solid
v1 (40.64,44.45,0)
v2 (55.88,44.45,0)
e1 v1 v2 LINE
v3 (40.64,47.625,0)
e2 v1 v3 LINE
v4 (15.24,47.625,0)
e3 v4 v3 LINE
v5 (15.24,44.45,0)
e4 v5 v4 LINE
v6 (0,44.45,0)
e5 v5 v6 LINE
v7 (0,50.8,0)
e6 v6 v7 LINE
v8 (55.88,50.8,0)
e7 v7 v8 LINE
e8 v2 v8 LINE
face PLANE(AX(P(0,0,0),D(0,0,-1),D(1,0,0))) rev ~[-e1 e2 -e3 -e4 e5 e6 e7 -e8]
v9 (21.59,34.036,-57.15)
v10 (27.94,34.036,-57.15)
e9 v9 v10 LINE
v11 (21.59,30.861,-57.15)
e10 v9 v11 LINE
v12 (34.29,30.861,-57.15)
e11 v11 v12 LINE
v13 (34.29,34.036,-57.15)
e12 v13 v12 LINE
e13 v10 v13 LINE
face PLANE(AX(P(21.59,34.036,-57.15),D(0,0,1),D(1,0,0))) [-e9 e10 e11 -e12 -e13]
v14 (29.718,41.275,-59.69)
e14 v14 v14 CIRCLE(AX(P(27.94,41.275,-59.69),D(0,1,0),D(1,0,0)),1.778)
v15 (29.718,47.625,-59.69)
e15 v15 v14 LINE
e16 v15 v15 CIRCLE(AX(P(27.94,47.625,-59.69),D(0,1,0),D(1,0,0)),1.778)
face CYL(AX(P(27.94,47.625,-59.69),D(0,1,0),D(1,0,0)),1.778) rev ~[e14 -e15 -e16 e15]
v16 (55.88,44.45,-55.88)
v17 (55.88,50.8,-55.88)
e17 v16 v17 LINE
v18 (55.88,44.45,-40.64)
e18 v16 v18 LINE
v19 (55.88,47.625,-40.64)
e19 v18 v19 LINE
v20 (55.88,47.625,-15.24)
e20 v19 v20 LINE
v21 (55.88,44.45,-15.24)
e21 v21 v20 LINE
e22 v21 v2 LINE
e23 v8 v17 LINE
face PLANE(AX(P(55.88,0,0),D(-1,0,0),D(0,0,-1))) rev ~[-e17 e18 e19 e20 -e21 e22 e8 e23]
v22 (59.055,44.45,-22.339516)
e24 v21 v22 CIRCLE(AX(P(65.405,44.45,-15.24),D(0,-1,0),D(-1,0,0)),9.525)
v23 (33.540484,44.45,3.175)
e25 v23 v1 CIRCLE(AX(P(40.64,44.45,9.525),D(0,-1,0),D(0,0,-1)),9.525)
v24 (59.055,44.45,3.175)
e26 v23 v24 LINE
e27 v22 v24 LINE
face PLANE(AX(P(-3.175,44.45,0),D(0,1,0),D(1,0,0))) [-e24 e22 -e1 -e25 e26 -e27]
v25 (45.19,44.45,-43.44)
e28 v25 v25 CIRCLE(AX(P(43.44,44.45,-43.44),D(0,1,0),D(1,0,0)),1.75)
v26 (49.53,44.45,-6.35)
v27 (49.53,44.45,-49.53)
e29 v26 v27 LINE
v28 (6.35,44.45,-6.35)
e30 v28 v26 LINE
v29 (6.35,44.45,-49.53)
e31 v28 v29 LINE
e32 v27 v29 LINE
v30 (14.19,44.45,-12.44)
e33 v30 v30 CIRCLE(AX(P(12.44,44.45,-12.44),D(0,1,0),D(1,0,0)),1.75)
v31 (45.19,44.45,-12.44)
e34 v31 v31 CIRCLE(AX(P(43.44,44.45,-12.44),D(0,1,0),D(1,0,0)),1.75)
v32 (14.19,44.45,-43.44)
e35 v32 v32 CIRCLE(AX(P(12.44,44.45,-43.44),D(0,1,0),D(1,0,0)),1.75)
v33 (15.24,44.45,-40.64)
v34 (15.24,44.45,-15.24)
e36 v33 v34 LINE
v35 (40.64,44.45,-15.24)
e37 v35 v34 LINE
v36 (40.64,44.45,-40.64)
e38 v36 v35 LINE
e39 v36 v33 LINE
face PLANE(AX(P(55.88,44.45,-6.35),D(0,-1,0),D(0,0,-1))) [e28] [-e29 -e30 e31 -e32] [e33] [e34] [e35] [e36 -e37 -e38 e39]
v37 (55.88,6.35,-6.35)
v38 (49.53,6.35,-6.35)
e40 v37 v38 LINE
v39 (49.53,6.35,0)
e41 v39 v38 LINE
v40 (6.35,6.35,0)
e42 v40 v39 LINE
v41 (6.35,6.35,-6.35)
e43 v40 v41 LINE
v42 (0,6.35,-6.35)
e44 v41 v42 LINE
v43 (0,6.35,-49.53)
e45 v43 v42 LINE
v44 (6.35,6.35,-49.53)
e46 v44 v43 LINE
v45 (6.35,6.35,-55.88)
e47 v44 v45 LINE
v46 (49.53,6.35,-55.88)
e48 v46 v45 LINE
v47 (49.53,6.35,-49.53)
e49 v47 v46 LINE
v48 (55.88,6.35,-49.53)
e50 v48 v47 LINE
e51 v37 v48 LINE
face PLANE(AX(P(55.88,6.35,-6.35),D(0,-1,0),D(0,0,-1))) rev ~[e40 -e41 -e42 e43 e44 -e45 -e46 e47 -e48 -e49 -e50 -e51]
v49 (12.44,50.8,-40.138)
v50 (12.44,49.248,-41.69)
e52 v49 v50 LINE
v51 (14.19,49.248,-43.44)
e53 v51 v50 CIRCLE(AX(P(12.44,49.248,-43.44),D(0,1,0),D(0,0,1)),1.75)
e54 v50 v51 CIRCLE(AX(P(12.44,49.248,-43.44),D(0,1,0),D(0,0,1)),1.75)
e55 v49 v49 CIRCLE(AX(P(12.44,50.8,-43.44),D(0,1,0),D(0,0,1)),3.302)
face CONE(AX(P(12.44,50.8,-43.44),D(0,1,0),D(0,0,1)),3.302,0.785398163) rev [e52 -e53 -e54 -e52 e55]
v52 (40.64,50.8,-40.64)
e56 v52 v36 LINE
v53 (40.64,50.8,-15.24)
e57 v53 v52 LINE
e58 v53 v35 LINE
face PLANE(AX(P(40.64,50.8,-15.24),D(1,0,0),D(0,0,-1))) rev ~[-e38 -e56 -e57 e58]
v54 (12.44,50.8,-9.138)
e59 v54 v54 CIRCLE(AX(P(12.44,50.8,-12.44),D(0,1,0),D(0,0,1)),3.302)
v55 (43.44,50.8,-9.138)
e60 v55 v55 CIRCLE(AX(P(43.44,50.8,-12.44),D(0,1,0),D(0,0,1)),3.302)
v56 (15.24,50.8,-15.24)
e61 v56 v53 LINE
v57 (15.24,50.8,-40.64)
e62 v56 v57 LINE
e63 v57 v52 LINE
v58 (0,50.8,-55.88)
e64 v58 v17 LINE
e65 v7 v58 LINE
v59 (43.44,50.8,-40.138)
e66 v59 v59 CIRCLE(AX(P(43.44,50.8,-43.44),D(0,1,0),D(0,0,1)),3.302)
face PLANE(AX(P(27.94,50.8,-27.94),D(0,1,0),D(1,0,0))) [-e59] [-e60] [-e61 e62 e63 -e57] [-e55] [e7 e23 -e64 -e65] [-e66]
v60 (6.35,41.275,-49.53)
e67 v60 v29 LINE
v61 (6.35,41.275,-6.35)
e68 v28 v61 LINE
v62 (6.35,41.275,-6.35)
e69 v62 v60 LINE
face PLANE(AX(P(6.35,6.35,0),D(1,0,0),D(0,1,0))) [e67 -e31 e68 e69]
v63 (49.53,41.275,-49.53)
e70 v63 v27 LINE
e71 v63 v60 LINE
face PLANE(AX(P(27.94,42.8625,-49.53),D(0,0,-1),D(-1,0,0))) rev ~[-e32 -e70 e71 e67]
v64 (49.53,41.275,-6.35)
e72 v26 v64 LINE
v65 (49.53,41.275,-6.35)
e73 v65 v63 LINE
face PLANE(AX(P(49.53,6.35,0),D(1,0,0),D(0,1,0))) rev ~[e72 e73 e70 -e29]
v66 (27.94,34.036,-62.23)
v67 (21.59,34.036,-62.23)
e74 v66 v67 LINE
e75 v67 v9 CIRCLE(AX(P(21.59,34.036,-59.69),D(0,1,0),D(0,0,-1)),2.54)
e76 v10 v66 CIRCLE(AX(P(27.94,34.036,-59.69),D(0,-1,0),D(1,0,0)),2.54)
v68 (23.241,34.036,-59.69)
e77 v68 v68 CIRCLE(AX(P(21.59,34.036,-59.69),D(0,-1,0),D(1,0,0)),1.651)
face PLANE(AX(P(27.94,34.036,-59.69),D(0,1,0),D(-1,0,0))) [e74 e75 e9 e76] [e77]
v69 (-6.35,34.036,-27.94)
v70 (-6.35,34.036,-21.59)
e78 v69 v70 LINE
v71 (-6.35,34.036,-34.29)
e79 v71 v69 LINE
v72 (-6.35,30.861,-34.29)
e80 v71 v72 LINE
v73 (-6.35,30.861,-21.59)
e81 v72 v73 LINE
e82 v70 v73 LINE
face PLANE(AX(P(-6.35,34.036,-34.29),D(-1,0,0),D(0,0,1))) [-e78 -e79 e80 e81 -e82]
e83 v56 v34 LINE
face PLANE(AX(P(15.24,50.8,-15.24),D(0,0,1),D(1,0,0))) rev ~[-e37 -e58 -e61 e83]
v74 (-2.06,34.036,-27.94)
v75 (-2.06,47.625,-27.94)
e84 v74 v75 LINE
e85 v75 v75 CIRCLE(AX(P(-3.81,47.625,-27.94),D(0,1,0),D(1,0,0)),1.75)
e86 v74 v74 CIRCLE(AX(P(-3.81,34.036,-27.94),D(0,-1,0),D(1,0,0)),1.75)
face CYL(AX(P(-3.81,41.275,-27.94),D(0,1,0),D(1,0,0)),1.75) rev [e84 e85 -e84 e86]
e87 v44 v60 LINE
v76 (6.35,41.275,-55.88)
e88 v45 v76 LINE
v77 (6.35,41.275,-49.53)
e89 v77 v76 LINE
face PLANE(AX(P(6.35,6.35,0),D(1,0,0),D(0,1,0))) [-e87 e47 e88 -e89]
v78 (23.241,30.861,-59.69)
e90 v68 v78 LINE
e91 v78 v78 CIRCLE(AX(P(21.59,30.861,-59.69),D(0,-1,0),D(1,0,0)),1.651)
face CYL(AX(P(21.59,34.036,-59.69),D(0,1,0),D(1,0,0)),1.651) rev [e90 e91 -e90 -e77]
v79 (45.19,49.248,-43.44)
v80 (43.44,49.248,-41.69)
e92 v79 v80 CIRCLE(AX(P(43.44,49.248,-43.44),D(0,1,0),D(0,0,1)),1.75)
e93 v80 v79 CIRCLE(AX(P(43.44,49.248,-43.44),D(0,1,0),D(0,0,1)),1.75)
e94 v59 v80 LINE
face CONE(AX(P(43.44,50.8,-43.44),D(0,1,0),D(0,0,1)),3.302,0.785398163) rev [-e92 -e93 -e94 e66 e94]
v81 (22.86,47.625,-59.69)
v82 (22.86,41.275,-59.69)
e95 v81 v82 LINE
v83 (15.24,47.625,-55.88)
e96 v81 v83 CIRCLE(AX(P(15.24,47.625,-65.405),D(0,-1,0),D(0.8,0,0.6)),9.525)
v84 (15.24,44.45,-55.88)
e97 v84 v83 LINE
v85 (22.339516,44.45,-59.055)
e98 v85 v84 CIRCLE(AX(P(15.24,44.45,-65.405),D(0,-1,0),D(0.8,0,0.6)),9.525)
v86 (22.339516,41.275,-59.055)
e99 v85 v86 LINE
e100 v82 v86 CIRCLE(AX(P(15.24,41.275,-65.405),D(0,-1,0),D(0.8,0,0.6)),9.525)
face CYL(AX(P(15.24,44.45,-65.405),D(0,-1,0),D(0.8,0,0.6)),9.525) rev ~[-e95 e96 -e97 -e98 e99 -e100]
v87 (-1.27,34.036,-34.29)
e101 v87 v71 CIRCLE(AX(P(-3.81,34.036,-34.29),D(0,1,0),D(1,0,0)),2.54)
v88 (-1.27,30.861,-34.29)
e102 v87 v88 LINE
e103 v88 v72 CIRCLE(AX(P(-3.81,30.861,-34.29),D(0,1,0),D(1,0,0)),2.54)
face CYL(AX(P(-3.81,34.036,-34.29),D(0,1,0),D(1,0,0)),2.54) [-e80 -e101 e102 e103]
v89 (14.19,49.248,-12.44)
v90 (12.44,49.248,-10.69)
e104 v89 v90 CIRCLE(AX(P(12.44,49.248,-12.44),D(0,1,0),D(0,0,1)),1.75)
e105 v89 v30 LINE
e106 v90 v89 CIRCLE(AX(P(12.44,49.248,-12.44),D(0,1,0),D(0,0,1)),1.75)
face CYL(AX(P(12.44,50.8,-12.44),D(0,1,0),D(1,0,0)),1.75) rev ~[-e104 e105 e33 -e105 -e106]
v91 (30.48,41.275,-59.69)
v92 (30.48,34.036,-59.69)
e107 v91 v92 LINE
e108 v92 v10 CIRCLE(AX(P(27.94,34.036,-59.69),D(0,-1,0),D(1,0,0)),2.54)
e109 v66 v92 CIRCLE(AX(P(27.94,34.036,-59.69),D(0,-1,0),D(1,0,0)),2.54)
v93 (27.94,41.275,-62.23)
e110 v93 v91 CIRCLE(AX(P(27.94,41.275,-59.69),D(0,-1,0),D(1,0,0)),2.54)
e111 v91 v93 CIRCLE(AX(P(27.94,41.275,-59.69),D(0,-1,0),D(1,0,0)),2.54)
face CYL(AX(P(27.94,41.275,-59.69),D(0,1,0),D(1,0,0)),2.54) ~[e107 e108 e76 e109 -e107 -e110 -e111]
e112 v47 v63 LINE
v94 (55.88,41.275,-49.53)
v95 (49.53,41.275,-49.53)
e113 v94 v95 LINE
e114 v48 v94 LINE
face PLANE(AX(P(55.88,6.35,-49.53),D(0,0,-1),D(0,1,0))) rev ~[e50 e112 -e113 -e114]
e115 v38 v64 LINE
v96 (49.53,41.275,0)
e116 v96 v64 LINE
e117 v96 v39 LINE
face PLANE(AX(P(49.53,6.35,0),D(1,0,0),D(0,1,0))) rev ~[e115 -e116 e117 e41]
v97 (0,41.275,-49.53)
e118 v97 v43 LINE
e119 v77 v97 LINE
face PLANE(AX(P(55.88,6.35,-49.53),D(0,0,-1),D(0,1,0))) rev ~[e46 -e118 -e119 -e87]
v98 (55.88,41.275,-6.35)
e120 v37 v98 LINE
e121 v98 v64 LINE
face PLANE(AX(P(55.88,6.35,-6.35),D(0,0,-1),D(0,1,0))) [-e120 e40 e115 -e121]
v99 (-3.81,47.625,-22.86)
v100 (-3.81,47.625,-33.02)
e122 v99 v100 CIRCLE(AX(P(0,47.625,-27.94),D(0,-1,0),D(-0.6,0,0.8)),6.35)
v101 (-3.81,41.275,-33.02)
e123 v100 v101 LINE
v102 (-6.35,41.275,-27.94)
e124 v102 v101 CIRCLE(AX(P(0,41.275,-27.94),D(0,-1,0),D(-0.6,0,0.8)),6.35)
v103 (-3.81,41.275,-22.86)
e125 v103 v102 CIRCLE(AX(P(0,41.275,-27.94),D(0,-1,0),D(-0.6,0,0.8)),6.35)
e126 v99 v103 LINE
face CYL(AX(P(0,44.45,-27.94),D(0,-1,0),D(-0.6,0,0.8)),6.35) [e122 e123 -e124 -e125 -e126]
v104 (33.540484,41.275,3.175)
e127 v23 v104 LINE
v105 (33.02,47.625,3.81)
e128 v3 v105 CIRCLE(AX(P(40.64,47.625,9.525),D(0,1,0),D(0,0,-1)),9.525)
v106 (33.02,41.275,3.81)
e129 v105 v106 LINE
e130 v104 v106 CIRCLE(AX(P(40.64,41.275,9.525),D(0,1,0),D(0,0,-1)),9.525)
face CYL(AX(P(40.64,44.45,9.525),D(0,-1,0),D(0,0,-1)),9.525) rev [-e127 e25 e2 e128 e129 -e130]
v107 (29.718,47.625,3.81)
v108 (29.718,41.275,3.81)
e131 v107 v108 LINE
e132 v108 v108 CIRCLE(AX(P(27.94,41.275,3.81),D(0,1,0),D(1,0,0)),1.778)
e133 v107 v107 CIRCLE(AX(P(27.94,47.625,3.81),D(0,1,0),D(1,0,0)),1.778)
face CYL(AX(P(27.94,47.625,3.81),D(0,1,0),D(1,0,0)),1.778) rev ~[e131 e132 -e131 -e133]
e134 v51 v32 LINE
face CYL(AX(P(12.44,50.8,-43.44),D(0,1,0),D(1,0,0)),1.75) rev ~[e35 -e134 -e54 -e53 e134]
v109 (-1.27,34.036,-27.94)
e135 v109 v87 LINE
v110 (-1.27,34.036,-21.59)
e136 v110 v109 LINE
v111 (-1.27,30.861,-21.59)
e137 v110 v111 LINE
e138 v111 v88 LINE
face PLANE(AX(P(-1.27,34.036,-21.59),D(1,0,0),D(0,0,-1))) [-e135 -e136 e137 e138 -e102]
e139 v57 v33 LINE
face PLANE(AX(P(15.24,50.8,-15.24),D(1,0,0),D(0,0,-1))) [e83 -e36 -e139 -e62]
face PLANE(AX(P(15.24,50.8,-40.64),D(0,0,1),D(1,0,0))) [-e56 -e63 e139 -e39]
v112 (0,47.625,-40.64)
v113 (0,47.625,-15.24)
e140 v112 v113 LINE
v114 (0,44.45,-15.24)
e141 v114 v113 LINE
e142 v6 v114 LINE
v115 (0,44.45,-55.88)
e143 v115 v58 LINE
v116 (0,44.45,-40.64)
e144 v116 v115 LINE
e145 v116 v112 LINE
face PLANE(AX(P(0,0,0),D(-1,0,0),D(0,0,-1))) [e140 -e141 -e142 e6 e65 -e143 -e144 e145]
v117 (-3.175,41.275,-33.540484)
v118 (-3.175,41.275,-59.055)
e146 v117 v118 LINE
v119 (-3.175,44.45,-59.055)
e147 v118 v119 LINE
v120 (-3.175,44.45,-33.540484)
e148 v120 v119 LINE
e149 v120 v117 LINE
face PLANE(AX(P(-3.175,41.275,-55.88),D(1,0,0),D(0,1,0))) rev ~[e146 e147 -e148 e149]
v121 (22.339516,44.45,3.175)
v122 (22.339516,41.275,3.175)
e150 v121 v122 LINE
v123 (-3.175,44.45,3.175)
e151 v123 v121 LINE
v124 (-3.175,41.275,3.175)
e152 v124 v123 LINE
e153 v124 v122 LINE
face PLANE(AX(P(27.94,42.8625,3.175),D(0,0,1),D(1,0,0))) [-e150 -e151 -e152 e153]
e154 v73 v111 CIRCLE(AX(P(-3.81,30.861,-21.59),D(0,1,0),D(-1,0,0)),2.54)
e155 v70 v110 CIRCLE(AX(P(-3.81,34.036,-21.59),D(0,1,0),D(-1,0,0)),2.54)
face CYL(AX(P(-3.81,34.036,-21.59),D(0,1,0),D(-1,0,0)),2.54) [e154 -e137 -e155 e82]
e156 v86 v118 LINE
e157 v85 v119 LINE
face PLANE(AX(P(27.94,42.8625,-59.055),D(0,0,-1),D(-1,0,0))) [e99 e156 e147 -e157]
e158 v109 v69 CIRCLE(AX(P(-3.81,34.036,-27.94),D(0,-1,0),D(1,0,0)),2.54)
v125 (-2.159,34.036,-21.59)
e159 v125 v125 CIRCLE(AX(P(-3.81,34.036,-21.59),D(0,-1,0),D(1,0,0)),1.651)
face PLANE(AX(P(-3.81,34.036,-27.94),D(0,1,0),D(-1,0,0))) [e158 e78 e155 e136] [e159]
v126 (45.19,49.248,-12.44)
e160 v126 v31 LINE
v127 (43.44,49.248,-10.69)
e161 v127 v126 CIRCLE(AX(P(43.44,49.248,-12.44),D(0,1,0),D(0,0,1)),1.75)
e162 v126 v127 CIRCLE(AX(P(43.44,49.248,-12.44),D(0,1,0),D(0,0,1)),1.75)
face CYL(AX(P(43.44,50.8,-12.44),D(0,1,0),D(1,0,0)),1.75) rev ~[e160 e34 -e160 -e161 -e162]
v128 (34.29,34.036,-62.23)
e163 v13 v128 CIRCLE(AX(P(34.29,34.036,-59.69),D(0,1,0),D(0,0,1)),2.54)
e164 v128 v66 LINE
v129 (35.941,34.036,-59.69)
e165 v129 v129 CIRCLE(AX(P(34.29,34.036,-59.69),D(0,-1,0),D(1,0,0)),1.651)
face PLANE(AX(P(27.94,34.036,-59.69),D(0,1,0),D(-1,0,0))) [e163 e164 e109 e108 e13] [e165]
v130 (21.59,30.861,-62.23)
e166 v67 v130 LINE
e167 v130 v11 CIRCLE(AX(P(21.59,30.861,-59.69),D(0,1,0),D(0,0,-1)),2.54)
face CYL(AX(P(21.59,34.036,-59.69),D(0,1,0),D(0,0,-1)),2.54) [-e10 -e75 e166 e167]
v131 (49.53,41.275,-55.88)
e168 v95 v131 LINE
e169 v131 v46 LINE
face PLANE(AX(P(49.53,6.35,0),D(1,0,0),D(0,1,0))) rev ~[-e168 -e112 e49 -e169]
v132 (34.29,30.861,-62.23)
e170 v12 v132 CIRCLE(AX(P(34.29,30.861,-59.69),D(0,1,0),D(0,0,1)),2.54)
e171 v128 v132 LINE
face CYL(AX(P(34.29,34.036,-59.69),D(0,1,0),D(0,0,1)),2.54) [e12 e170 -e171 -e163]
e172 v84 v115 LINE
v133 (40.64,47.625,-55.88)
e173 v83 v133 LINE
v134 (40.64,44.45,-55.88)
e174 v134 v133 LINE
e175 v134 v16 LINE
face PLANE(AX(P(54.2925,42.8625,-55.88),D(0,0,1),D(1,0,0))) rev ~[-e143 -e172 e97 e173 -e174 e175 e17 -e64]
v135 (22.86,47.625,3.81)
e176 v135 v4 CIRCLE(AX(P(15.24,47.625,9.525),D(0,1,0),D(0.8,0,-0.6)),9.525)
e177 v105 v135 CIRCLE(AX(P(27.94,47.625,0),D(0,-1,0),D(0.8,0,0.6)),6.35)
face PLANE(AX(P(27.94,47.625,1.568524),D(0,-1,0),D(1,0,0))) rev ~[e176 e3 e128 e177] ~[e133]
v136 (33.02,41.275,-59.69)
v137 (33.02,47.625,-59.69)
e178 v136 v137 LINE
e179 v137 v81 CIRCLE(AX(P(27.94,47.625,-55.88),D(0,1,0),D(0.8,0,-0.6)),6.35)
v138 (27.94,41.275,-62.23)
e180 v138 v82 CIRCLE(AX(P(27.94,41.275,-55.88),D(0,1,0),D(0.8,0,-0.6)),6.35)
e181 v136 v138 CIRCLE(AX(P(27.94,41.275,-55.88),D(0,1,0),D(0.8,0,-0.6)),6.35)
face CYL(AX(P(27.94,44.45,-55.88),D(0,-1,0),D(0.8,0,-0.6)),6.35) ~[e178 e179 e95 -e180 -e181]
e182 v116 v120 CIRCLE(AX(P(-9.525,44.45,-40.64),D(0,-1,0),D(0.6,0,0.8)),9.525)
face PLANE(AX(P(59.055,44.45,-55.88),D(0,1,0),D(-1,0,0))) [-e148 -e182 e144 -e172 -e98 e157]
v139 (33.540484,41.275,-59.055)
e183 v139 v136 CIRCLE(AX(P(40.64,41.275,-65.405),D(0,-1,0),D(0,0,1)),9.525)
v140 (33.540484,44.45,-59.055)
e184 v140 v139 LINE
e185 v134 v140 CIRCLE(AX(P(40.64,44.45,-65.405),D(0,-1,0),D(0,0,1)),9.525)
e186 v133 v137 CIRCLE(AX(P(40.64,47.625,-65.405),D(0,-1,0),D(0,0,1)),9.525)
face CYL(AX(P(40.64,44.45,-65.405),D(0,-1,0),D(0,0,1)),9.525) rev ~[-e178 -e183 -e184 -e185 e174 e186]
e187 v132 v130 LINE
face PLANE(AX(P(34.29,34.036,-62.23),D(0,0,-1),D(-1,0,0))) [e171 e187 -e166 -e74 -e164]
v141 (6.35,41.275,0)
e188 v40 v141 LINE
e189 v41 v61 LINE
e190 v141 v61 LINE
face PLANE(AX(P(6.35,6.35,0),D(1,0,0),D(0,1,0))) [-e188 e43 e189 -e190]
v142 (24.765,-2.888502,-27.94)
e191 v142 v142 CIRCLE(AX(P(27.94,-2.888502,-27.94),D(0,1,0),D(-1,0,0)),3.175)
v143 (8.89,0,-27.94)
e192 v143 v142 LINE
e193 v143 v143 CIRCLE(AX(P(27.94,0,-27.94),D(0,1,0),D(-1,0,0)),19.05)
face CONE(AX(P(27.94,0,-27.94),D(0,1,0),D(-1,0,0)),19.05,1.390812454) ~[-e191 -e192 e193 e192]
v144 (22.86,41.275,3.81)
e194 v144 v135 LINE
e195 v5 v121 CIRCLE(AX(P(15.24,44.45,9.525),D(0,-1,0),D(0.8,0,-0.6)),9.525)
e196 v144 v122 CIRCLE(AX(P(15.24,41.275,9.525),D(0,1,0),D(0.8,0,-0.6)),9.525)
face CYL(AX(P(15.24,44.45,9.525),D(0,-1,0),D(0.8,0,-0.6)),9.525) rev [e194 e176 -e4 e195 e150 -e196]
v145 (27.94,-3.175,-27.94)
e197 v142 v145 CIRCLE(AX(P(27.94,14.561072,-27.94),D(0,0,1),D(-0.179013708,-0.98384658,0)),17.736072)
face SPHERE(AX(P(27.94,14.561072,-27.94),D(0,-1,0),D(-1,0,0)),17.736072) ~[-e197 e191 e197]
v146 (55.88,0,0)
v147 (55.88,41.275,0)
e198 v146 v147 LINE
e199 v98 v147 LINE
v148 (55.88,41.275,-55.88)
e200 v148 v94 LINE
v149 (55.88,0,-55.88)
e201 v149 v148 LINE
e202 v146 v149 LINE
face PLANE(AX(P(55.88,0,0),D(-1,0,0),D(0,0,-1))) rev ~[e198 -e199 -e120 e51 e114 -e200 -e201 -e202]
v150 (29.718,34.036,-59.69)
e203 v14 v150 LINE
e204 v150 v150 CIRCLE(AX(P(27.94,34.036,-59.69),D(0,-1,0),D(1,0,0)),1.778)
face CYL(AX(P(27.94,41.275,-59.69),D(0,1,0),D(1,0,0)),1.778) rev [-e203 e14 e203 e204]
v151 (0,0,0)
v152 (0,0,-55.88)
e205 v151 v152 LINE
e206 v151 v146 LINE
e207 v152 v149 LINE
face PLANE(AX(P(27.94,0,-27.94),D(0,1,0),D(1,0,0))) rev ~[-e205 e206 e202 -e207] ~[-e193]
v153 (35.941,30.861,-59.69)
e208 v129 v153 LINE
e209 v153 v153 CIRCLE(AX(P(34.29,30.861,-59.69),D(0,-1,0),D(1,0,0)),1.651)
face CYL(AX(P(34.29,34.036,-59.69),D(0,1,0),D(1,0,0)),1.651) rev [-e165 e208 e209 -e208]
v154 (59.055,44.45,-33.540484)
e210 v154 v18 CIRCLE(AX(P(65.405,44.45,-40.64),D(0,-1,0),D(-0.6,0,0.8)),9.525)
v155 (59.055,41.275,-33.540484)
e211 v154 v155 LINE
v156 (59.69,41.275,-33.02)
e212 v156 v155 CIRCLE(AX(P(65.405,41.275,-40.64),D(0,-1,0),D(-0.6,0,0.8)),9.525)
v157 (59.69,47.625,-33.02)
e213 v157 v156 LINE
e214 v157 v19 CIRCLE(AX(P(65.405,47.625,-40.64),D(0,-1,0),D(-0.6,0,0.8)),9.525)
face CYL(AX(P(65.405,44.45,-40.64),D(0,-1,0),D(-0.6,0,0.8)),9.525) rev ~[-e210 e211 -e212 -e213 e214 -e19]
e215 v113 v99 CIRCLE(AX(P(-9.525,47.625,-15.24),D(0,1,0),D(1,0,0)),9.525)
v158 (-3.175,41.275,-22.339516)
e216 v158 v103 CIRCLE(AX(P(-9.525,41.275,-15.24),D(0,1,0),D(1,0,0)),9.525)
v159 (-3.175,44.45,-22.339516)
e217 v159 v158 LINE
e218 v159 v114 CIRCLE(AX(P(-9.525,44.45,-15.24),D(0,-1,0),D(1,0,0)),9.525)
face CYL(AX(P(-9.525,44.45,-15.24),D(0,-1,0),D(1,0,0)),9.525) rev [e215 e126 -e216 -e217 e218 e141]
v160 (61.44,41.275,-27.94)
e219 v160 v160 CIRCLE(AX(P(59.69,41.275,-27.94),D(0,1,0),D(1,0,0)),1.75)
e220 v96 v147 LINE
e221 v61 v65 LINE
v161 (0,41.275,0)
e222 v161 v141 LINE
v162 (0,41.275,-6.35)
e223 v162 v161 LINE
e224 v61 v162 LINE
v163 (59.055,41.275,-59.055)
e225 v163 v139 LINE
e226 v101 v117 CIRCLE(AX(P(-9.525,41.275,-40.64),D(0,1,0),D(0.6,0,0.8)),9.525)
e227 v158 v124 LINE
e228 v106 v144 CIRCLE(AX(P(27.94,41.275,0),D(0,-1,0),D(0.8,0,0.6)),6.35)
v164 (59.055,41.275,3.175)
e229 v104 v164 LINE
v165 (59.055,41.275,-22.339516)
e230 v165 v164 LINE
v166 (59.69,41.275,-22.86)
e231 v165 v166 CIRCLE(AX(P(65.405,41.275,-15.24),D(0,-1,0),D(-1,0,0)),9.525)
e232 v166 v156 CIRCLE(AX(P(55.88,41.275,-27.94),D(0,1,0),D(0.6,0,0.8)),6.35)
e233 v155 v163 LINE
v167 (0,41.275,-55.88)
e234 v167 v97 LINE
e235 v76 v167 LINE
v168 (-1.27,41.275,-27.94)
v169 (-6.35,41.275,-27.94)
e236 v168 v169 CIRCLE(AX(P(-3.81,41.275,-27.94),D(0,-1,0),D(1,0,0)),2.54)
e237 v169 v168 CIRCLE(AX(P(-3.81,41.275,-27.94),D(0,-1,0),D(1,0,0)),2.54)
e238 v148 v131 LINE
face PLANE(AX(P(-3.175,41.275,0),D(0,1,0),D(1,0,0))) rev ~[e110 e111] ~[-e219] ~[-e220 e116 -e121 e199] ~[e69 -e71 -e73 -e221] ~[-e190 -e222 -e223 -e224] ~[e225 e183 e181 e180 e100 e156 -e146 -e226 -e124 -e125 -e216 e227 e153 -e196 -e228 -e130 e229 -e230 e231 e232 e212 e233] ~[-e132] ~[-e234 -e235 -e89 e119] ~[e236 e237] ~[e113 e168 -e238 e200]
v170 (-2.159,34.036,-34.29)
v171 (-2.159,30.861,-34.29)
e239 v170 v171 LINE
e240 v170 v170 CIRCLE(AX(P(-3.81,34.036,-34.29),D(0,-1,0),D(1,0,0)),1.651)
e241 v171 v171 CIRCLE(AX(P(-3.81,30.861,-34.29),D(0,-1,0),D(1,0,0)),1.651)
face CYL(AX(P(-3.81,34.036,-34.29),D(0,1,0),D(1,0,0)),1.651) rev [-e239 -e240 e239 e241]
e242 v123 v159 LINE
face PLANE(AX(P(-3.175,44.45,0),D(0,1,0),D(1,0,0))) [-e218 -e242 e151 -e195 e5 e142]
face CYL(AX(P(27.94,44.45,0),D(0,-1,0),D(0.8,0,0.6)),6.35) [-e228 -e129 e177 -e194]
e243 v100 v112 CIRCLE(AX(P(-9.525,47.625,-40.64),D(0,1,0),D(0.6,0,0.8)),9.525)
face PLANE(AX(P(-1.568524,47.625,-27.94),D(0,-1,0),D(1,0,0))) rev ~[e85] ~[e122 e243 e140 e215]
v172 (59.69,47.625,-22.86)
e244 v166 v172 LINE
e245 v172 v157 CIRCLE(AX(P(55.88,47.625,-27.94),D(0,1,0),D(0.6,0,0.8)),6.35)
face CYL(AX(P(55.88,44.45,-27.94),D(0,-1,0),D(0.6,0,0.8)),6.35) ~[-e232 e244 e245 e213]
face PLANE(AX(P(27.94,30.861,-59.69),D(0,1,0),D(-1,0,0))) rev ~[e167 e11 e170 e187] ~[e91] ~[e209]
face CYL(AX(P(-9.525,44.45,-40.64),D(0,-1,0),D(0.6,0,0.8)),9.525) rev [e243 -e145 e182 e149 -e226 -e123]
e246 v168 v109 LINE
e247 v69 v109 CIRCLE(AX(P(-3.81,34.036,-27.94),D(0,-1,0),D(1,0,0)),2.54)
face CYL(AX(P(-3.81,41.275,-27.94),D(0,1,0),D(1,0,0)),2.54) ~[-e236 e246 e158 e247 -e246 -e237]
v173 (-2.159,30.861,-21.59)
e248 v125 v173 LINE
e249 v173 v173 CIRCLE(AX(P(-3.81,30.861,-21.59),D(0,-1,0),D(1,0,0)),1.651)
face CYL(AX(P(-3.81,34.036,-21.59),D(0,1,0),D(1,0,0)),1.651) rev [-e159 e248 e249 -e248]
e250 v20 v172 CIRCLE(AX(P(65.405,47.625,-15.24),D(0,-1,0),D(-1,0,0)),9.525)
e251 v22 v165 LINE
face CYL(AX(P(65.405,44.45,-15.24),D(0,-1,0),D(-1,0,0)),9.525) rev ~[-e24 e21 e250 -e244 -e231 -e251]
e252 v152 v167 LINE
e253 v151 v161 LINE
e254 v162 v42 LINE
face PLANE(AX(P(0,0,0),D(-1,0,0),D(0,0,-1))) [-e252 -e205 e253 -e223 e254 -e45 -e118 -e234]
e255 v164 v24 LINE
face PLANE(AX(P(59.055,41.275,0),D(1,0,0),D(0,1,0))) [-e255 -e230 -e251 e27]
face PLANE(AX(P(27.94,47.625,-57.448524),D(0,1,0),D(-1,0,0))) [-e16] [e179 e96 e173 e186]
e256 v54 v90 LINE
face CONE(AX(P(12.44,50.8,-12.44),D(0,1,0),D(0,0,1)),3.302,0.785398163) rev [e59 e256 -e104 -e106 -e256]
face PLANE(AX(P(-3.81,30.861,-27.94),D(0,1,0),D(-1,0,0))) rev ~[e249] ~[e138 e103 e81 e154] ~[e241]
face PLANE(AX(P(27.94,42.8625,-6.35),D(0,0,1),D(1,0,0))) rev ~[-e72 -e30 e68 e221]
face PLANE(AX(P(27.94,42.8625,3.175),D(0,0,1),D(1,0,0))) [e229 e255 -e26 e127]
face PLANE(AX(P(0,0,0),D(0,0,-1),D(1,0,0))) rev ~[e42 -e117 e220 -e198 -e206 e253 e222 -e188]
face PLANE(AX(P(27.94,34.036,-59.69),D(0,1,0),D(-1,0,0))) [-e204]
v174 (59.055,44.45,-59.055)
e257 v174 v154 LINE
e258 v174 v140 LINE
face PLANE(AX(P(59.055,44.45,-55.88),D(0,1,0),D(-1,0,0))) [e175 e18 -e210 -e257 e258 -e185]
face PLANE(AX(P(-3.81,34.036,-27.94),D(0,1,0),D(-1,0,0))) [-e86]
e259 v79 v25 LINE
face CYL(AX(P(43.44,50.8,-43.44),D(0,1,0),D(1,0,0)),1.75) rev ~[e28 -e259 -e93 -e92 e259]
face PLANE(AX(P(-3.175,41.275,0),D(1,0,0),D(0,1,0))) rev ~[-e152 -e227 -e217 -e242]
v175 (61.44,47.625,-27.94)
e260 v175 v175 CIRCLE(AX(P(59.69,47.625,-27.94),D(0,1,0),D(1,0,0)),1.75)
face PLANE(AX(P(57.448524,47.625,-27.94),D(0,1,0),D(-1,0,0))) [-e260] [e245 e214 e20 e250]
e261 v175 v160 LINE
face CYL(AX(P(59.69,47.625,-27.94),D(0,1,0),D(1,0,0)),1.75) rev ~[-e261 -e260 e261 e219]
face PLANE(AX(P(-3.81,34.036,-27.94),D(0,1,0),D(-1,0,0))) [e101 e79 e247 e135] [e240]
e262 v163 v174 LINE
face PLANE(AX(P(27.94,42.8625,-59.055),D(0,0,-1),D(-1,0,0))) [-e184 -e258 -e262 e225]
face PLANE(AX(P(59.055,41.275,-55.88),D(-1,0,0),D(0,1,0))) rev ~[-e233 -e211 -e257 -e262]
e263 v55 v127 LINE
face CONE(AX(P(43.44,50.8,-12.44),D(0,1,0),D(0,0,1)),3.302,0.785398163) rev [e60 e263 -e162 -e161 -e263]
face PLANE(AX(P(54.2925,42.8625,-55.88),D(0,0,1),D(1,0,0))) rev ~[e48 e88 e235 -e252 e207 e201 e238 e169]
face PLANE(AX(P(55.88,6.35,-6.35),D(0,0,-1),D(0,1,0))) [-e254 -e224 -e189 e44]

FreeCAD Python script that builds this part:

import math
import FreeCAD as App
import Part
import Sketcher

V = App.Vector
Q = App.Units.Quantity


def add_polygon(sketch, points):
    """Adds a closed chain of lines whose ends are joined by coincident constraints."""
    first, n = sketch.GeometryCount, len(points)
    for a, b in zip(points, points[1:] + points[:1]):
        sketch.addGeometry(Part.LineSegment(App.Vector(*a, 0), App.Vector(*b, 0)), False)
    for i in range(n):
        sketch.addConstraint(Sketcher.Constraint("Coincident", first + i, 2, first + (i + 1) % n, 1))

doc = App.newDocument("Part")
params = doc.addObject("Spreadsheet::Sheet", "Params")
for row, (alias, value) in enumerate([
    ("sketch1_width", "2.2 in"),
    ("pad1_length", "2 in"),
    ("sketch2_width", "1.7 in"),
    ("sketch2_height", "1.5 in"),
    ("sketch3_width", "1.5 in"),
    ("sketch3_height", "1.7 in"),
    ("sketch4_width", "1 in"),
    ("pocket3_length", "1.75 in"),
    ("sketch5_width", "0.13 in"),
    ("groove_angle", "360 deg"),
    ("sketch6_width", "0.13 in"),
    ("groove2_angle", "360 deg"),
    ("sketch7_width", "0.13 in"),
    ("groove3_angle", "360 deg"),
    ("sketch8_width", "0.13 in"),
    ("groove4_angle", "360 deg"),
    ("sketch9_width", "1 in"),
    ("sketch9_radius", "0.25 in"),
    ("pad2_length", "0.125 in"),
    ("pad2_length2", "0.125 in"),
    ("sketch10_width", "0.375 in"),
    ("sketch10_height", "0.125 in"),
    ("pad3_length", "2.2 in"),
    ("sketch11_width", "2.45 in"),
    ("sketch11_height", "0.125 in"),
    ("pad4_length", "0.125 in"),
    ("pad4_length2", "0.25 in"),
    ("sketch12_width", "2.45 in"),
    ("sketch12_height", "0.125 in"),
    ("pad5_length", "0.125 in"),
    ("pad5_length2", "0.25 in"),
    ("sketch13_diameter", "0.14 in"),
    ("sketch14_width", "0.75 in"),
    ("sketch14_height", "0.125 in"),
    ("revolution_angle", "360 deg"),
    ("sketch15_diameter", "0.2 in"),
    ("sketch15_diameter2", "0.14 in"),
    ("pad6_length", "0.285 in"),
    ("sketch16_radius", "0.1 in"),
    ("sketch16_diameter", "0.13 in"),
    ("sketch16_width", "0.5 in"),
    ("pad7_length", "0.125 in"),
], start=1):
    params.set(f"A{row}", alias)
    params.set(f"B{row}", "=" + value)
    params.setAlias(f"B{row}", alias)

body = doc.addObject("PartDesign::Body", "Body")

sketch1 = body.newObject("Sketcher::SketchObject", "Sketch")
sketch1.AttachmentSupport = (doc.getObject("XZ_Plane"), [""])
sketch1.MapMode = "FlatFace"
add_polygon(sketch1, [(0, -56), (0, 0), (56, 0), (56, -56)])
sketch1.addConstraint([
    Sketcher.Constraint("Vertical", 0),
    Sketcher.Constraint("Horizontal", 1),
    Sketcher.Constraint("Vertical", 2),
    Sketcher.Constraint("Horizontal", 3),
    Sketcher.Constraint("Coincident", 0, 2, -1, 1),
    Sketcher.Constraint("Equal", 3, 0),
    Sketcher.Constraint("DistanceX", 1, 1, 1, 2, Q("2.2 in")),
])
sketch1.setExpression("Constraints[10]", "Params.sketch1_width")
pad1 = body.newObject("PartDesign::Pad", "Pad")
pad1.Profile = sketch1
pad1.setExpression("Length", "Params.pad1_length")
pad1.Reversed = True

sketch2 = body.newObject("Sketcher::SketchObject", "Sketch001")
sketch2.AttachmentSupport = (doc.getObject("XY_Plane"), [""])
sketch2.MapMode = "FlatFace"
add_polygon(sketch2, [(6, 44), (6, 6), (50, 6), (50, 44)])
sketch2.addConstraint([
    Sketcher.Constraint("Vertical", 0),
    Sketcher.Constraint("Horizontal", 1),
    Sketcher.Constraint("Vertical", 2),
    Sketcher.Constraint("Horizontal", 3),
    Sketcher.Constraint("DistanceX", 1, 1, 1, 2, Q("1.7 in")),
    Sketcher.Constraint("DistanceY", 0, 2, 0, 1, Q("1.5 in")),
    Sketcher.Constraint("DistanceX", -1, 1, 0, 2, Q("0.25 in")),
    Sketcher.Constraint("DistanceY", -1, 1, 0, 2, Q("0.25 in")),
])
sketch2.setExpression("Constraints[8]", "Params.sketch2_width")
sketch2.setExpression("Constraints[9]", "Params.sketch2_height")
pocket1 = body.newObject("PartDesign::Pocket", "Pocket")
pocket1.Profile = sketch2
pocket1.Type = "ThroughAll"

sketch3 = body.newObject("Sketcher::SketchObject", "Sketch002")
sketch3.AttachmentSupport = (doc.getObject("YZ_Plane"), [""])
sketch3.MapMode = "FlatFace"
sketch3.AttachmentOffset = App.Placement(V(0, 0, 2.2 * 25.4), App.Rotation())
add_polygon(sketch3, [(44, -6), (6, -6), (6, -50), (44, -50)])
sketch3.addConstraint([
    Sketcher.Constraint("Horizontal", 0),
    Sketcher.Constraint("Vertical", 1),
    Sketcher.Constraint("Horizontal", 2),
    Sketcher.Constraint("Vertical", 3),
    Sketcher.Constraint("DistanceX", 0, 2, 0, 1, Q("1.5 in")),
    Sketcher.Constraint("DistanceY", 1, 2, 1, 1, Q("1.7 in")),
    Sketcher.Constraint("DistanceX", -1, 1, 0, 2, Q("0.25 in")),
    Sketcher.Constraint("DistanceY", 0, 2, -1, 1, Q("0.25 in")),
])
sketch3.setExpression("Constraints[8]", "Params.sketch3_width")
sketch3.setExpression("Constraints[9]", "Params.sketch3_height")
pocket2 = body.newObject("PartDesign::Pocket", "Pocket001")
pocket2.Profile = sketch3
pocket2.Type = "ThroughAll"

sketch4 = body.newObject("Sketcher::SketchObject", "Sketch003")
sketch4.AttachmentSupport = (doc.getObject("XZ_Plane"), [""])
sketch4.MapMode = "FlatFace"
sketch4.AttachmentOffset = App.Placement(V(0, 0, -2 * 25.4), App.Rotation())
sketch4.addGeometry(Part.Circle(V(43.4, -43.4, 0), V(0, 0, 1), 1.8), False)
sketch4.addGeometry(Part.Circle(V(43.4, -12.4, 0), V(0, 0, 1), 1.8), False)
sketch4.addGeometry(Part.Circle(V(12.4, -12.4, 0), V(0, 0, 1), 1.8), False)
sketch4.addGeometry(Part.Circle(V(12.4, -43.4, 0), V(0, 0, 1), 1.8), False)
add_polygon(sketch4, [(15.2, -40.6), (15.2, -15.2), (40.6, -15.2), (40.6, -40.6)])
sketch4.addConstraint([
    Sketcher.Constraint("Vertical", 4),
    Sketcher.Constraint("Horizontal", 5),
    Sketcher.Constraint("Vertical", 6),
    Sketcher.Constraint("Horizontal", 7),
    Sketcher.Constraint("Equal", 0, 1),
    Sketcher.Constraint("Equal", 1, 2),
    Sketcher.Constraint("Equal", 2, 3),
    Sketcher.Constraint("Horizontal", 1, 3, 2, 3),
    Sketcher.Constraint("Horizontal", 0, 3, 3, 3),
    Sketcher.Constraint("Vertical", 0, 3, 1, 3),
    Sketcher.Constraint("Vertical", 2, 3, 3, 3),
    Sketcher.Constraint("Equal", 7, 4),
    Sketcher.Constraint("DistanceX", 5, 1, 5, 2, Q("1 in")),
    Sketcher.Constraint("DistanceX", -1, 1, 4, 2, Q("0.6 in")),
    Sketcher.Constraint("DistanceY", 4, 2, -1, 1, Q("0.6 in")),
    Sketcher.Constraint("Diameter", 0, 3.5),
    Sketcher.Constraint("DistanceX", -1, 1, 0, 3, 43.44),
    Sketcher.Constraint("DistanceY", 0, 3, -1, 1, 43.44),
    Sketcher.Constraint("DistanceY", 1, 3, -1, 1, 12.44),
    Sketcher.Constraint("DistanceX", -1, 1, 2, 3, 12.44),
])
sketch4.setExpression("Constraints[16]", "Params.sketch4_width")
pocket3 = body.newObject("PartDesign::Pocket", "Pocket002")
pocket3.Profile = sketch4
pocket3.setExpression("Length", "Params.pocket3_length")
pocket3.Reversed = True

sketch5 = body.newObject("Sketcher::SketchObject", "Sketch004")
sketch5.AttachmentSupport = (doc.getObject("YZ_Plane"), [""])
sketch5.MapMode = "FlatFace"
sketch5.AttachmentOffset = App.Placement(V(0, 0, 12.44), App.Rotation())
add_polygon(sketch5, [(50.8, -43.4), (50.8, -40.1), (47.5, -43.4)])
sketch5.addGeometry(Part.LineSegment(V(47.5, -43.4, 0), V(50.8, -43.4, 0)), True)
sketch5.addConstraint([
    Sketcher.Constraint("Vertical", 0),
    Sketcher.Constraint("Horizontal", 2),
    Sketcher.Constraint("Horizontal", 3),
    Sketcher.Constraint("Coincident", 3, 1, 1, 2),
    Sketcher.Constraint("Vertical", 0, 2, 3, 2),
    Sketcher.Constraint("Equal", 3, 0),
    Sketcher.Constraint("DistanceX", -1, 1, 0, 2, Q("2 in")),
    Sketcher.Constraint("DistanceX", 2, 1, 2, 2, Q("0.13 in")),
    Sketcher.Constraint("DistanceY", 0, 2, -1, 1, 40.138),
])
sketch5.setExpression("Constraints[10]", "Params.sketch5_width")
groove = body.newObject("PartDesign::Groove", "Groove")
groove.Profile = sketch5
groove.ReferenceAxis = (sketch5, ["Axis0"])
groove.setExpression("Angle", "Params.groove_angle")

sketch6 = body.newObject("Sketcher::SketchObject", "Sketch005")
sketch6.AttachmentSupport = (doc.getObject("YZ_Plane"), [""])
sketch6.MapMode = "FlatFace"
sketch6.AttachmentOffset = App.Placement(V(0, 0, 12.44), App.Rotation())
add_polygon(sketch6, [(50.8, -12.4), (50.8, -9.1), (47.5, -12.4)])
sketch6.addGeometry(Part.LineSegment(V(47.5, -12.4, 0), V(50.8, -12.4, 0)), True)
sketch6.addConstraint([
    Sketcher.Constraint("Vertical", 0),
    Sketcher.Constraint("Horizontal", 2),
    Sketcher.Constraint("Horizontal", 3),
    Sketcher.Constraint("Coincident", 3, 1, 1, 2),
    Sketcher.Constraint("Vertical", 0, 2, 3, 2),
    Sketcher.Constraint("Equal", 3, 0),
    Sketcher.Constraint("DistanceX", -1, 1, 0, 2, Q("2 in")),
    Sketcher.Constraint("DistanceX", 2, 1, 2, 2, Q("0.13 in")),
    Sketcher.Constraint("DistanceY", 0, 2, -1, 1, 9.138),
])
sketch6.setExpression("Constraints[10]", "Params.sketch6_width")
groove2 = body.newObject("PartDesign::Groove", "Groove001")
groove2.Profile = sketch6
groove2.ReferenceAxis = (sketch6, ["Axis0"])
groove2.setExpression("Angle", "Params.groove2_angle")

sketch7 = body.newObject("Sketcher::SketchObject", "Sketch006")
sketch7.AttachmentSupport = (doc.getObject("YZ_Plane"), [""])
sketch7.MapMode = "FlatFace"
sketch7.AttachmentOffset = App.Placement(V(0, 0, 43.44), App.Rotation())
add_polygon(sketch7, [(50.8, -43.4), (50.8, -40.1), (47.5, -43.4)])
sketch7.addGeometry(Part.LineSegment(V(47.5, -43.4, 0), V(50.8, -43.4, 0)), True)
sketch7.addConstraint([
    Sketcher.Constraint("Vertical", 0),
    Sketcher.Constraint("Horizontal", 2),
    Sketcher.Constraint("Horizontal", 3),
    Sketcher.Constraint("Coincident", 3, 1, 1, 2),
    Sketcher.Constraint("Vertical", 0, 2, 3, 2),
    Sketcher.Constraint("Equal", 3, 0),
    Sketcher.Constraint("DistanceX", -1, 1, 0, 2, Q("2 in")),
    Sketcher.Constraint("DistanceX", 2, 1, 2, 2, Q("0.13 in")),
    Sketcher.Constraint("DistanceY", 0, 2, -1, 1, 40.138),
])
sketch7.setExpression("Constraints[10]", "Params.sketch7_width")
groove3 = body.newObject("PartDesign::Groove", "Groove002")
groove3.Profile = sketch7
groove3.ReferenceAxis = (sketch7, ["Axis0"])
groove3.setExpression("Angle", "Params.groove3_angle")

sketch8 = body.newObject("Sketcher::SketchObject", "Sketch007")
sketch8.AttachmentSupport = (doc.getObject("YZ_Plane"), [""])
sketch8.MapMode = "FlatFace"
sketch8.AttachmentOffset = App.Placement(V(0, 0, 43.44), App.Rotation())
add_polygon(sketch8, [(50.8, -12.4), (50.8, -9.1), (47.5, -12.4)])
sketch8.addGeometry(Part.LineSegment(V(47.5, -12.4, 0), V(50.8, -12.4, 0)), True)
sketch8.addConstraint([
    Sketcher.Constraint("Vertical", 0),
    Sketcher.Constraint("Horizontal", 2),
    Sketcher.Constraint("Horizontal", 3),
    Sketcher.Constraint("Coincident", 3, 1, 1, 2),
    Sketcher.Constraint("Vertical", 0, 2, 3, 2),
    Sketcher.Constraint("Equal", 3, 0),
    Sketcher.Constraint("DistanceX", -1, 1, 0, 2, Q("2 in")),
    Sketcher.Constraint("DistanceX", 2, 1, 2, 2, Q("0.13 in")),
    Sketcher.Constraint("DistanceY", 0, 2, -1, 1, 9.138),
])
sketch8.setExpression("Constraints[10]", "Params.sketch8_width")
groove4 = body.newObject("PartDesign::Groove", "Groove003")
groove4.Profile = sketch8
groove4.ReferenceAxis = (sketch8, ["Axis0"])
groove4.setExpression("Angle", "Params.groove4_angle")

sketch9 = body.newObject("Sketcher::SketchObject", "Sketch008")
sketch9.AttachmentSupport = (doc.getObject("XZ_Plane"), [""])
sketch9.MapMode = "FlatFace"
sketch9.AttachmentOffset = App.Placement(V(0, 0, -1.75 * 25.4), App.Rotation())
sketch9.addGeometry([
    Part.LineSegment(V(0, -41, 0), V(0, -15, 0)),
    Part.ArcOfCircle(Part.Circle(V(-10, -15, 0), V(0, 0, 1), 10), math.radians(-53), math.radians(0)),
    Part.ArcOfCircle(Part.Circle(V(0, -28, 0), V(0, 0, 1), 6), math.radians(127), math.radians(233)),
    Part.ArcOfCircle(Part.Circle(V(-10, -41, 0), V(0, 0, 1), 10), math.radians(0), math.radians(53)),
    Part.LineSegment(V(56, -15, 0), V(56, -41, 0)),
    Part.ArcOfCircle(Part.Circle(V(65, -41, 0), V(0, 0, 1), 10), math.radians(127), math.radians(180)),
    Part.ArcOfCircle(Part.Circle(V(56, -28, 0), V(0, 0, 1), 6), math.radians(-53), math.radians(53)),
    Part.ArcOfCircle(Part.Circle(V(65, -15, 0), V(0, 0, 1), 10), math.radians(-180), math.radians(-127)),
    Part.LineSegment(V(15, 0, 0), V(41, 0, 0)),
    Part.ArcOfCircle(Part.Circle(V(41, 10, 0), V(0, 0, 1), 10), math.radians(-143), math.radians(-90)),
    Part.ArcOfCircle(Part.Circle(V(28, 0, 0), V(0, 0, 1), 6), math.radians(37), math.radians(143)),
    Part.ArcOfCircle(Part.Circle(V(15, 10, 0), V(0, 0, 1), 10), math.radians(-90), math.radians(-37)),
    Part.LineSegment(V(41, -56, 0), V(15, -56, 0)),
    Part.ArcOfCircle(Part.Circle(V(15, -65, 0), V(0, 0, 1), 10), math.radians(37), math.radians(90)),
    Part.ArcOfCircle(Part.Circle(V(28, -56, 0), V(0, 0, 1), 6), math.radians(-143), math.radians(-37)),
    Part.ArcOfCircle(Part.Circle(V(41, -65, 0), V(0, 0, 1), 10), math.radians(90), math.radians(143)),
], False)
sketch9.addConstraint([
    Sketcher.Constraint("Tangent", 0, 2, 1, 2),
    Sketcher.Constraint("Tangent", 1, 1, 2, 1),
    Sketcher.Constraint("Tangent", 2, 2, 3, 2),
    Sketcher.Constraint("Tangent", 3, 1, 0, 1),
    Sketcher.Constraint("Tangent", 4, 2, 5, 2),
    Sketcher.Constraint("Tangent", 5, 1, 6, 1),
    Sketcher.Constraint("Tangent", 6, 2, 7, 2),
    Sketcher.Constraint("Tangent", 7, 1, 4, 1),
    Sketcher.Constraint("Tangent", 8, 2, 9, 2),
    Sketcher.Constraint("Tangent", 9, 1, 10, 1),
    Sketcher.Constraint("Tangent", 10, 2, 11, 2),
    Sketcher.Constraint("Tangent", 11, 1, 8, 1),
    Sketcher.Constraint("Tangent", 12, 2, 13, 2),
    Sketcher.Constraint("Tangent", 13, 1, 14, 1),
    Sketcher.Constraint("Tangent", 14, 2, 15, 2),
    Sketcher.Constraint("Tangent", 15, 1, 12, 1),
    Sketcher.Constraint("Vertical", 0),
    Sketcher.Constraint("Vertical", 4),
    Sketcher.Constraint("Horizontal", 8),
    Sketcher.Constraint("Horizontal", 12),
    Sketcher.Constraint("Equal", 1, 3),
    Sketcher.Constraint("Equal", 3, 5),
    Sketcher.Constraint("Equal", 2, 6),
    Sketcher.Constraint("Equal", 5, 7),
    Sketcher.Constraint("Equal", 7, 9),
    Sketcher.Constraint("Equal", 6, 10),
    Sketcher.Constraint("Equal", 9, 11),
    Sketcher.Constraint("Equal", 11, 13),
    Sketcher.Constraint("Equal", 10, 14),
    Sketcher.Constraint("Equal", 13, 15),
    Sketcher.Constraint("PointOnObject", 2, 3, -2),
    Sketcher.Constraint("PointOnObject", 10, 3, -1),
    Sketcher.Constraint("PointOnObject", 0, 2, -2),
    Sketcher.Constraint("PointOnObject", 8, 2, -1),
    Sketcher.Constraint("Horizontal", 3, 3, 5, 3),
    Sketcher.Constraint("Horizontal", 2, 3, 6, 3),
    Sketcher.Constraint("Horizontal", 14, 3, 12, 2),
    Sketcher.Constraint("Vertical", 11, 3, 13, 3),
    Sketcher.Constraint("DistanceX", 8, 1, 8, 2, Q("1 in")),
    Sketcher.Constraint("Radius", 2, Q("0.25 in")),
    Sketcher.Constraint("DistanceY", 1, 3, -1, 1, Q("0.6 in")),
    Sketcher.Constraint("DistanceX", -1, 1, 6, 3, Q("2.2 in")),
    Sketcher.Constraint("DistanceX", -1, 1, 9, 3, Q("1.6 in")),
    Sketcher.Constraint("DistanceY", 14, 3, -1, 1, Q("2.2 in")),
])
sketch9.setExpression("Constraints[38]", "Params.sketch9_width")
sketch9.setExpression("Constraints[39]", "Params.sketch9_radius")
pad2 = body.newObject("PartDesign::Pad", "Pad001")
pad2.Profile = sketch9
pad2.Type = "TwoLengths"
pad2.setExpression("Length", "Params.pad2_length")
pad2.setExpression("Length2", "Params.pad2_length2")

sketch10 = body.newObject("Sketcher::SketchObject", "Sketch009")
sketch10.AttachmentSupport = (doc.getObject("XY_Plane"), [""])
sketch10.MapMode = "FlatFace"
add_polygon(sketch10, [(49.5, 44.5), (49.5, 41.3), (59.1, 41.3), (59.1, 44.5)])
add_polygon(sketch10, [(-3.2, 44.5), (-3.2, 41.3), (6.3, 41.3), (6.3, 44.5)])
sketch10.addConstraint([
    Sketcher.Constraint("Vertical", 0),
    Sketcher.Constraint("Horizontal", 1),
    Sketcher.Constraint("Vertical", 2),
    Sketcher.Constraint("Horizontal", 3),
    Sketcher.Constraint("Vertical", 4),
    Sketcher.Constraint("Horizontal", 5),
    Sketcher.Constraint("Vertical", 6),
    Sketcher.Constraint("Horizontal", 7),
    Sketcher.Constraint("Horizontal", 1, 2, 4, 2),
    Sketcher.Constraint("Horizontal", 3, 2, 6, 2),
    Sketcher.Constraint("Equal", 3, 5),
    Sketcher.Constraint("DistanceX", 5, 2, 0, 2, Q("1.7 in")),
    Sketcher.Constraint("DistanceX", 1, 1, 1, 2, Q("0.375 in")),
    Sketcher.Constraint("DistanceY", 0, 2, 0, 1, Q("0.125 in")),
    Sketcher.Constraint("DistanceX", -1, 1, 0, 2, Q("1.95 in")),
    Sketcher.Constraint("DistanceY", -1, 1, 2, 2, Q("1.75 in")),
])
sketch10.setExpression("Constraints[20]", "Params.sketch10_width")
sketch10.setExpression("Constraints[21]", "Params.sketch10_height")
pad3 = body.newObject("PartDesign::Pad", "Pad002")
pad3.Profile = sketch10
pad3.setExpression("Length", "Params.pad3_length")
pad3.Reversed = True

sketch11 = body.newObject("Sketcher::SketchObject", "Sketch010")
sketch11.AttachmentSupport = (doc.getObject("XY_Plane"), [""])
sketch11.MapMode = "FlatFace"
sketch11.AttachmentOffset = App.Placement(V(0, 0, -2.2 * 25.4), App.Rotation())
add_polygon(sketch11, [(59.1, 44.5), (59.1, 41.3), (-3.2, 41.3), (-3.2, 44.5)])
sketch11.addConstraint([
    Sketcher.Constraint("Vertical", 0),
    Sketcher.Constraint("Horizontal", 1),
    Sketcher.Constraint("Vertical", 2),
    Sketcher.Constraint("Horizontal", 3),
    Sketcher.Constraint("DistanceX", 1, 2, 1, 1, Q("2.45 in")),
    Sketcher.Constraint("DistanceY", 0, 2, 0, 1, Q("0.125 in")),
    Sketcher.Constraint("DistanceY", -1, 1, 2, 2, Q("1.75 in")),
    Sketcher.Constraint("DistanceX", -1, 1, 0, 2, Q("2.325 in")),
])
sketch11.setExpression("Constraints[8]", "Params.sketch11_width")
sketch11.setExpression("Constraints[9]", "Params.sketch11_height")
pad4 = body.newObject("PartDesign::Pad", "Pad003")
pad4.Profile = sketch11
pad4.Type = "TwoLengths"
pad4.setExpression("Length", "Params.pad4_length")
pad4.setExpression("Length2", "Params.pad4_length2")
pad4.Reversed = True

sketch12 = body.newObject("Sketcher::SketchObject", "Sketch011")
sketch12.AttachmentSupport = (doc.getObject("XY_Plane"), [""])
sketch12.MapMode = "FlatFace"
add_polygon(sketch12, [(-3.2, 44.5), (-3.2, 41.3), (59.1, 41.3), (59.1, 44.5)])
sketch12.addConstraint([
    Sketcher.Constraint("Vertical", 0),
    Sketcher.Constraint("Horizontal", 1),
    Sketcher.Constraint("Vertical", 2),
    Sketcher.Constraint("Horizontal", 3),
    Sketcher.Constraint("DistanceX", 1, 1, 1, 2, Q("2.45 in")),
    Sketcher.Constraint("DistanceY", 0, 2, 0, 1, Q("0.125 in")),
    Sketcher.Constraint("DistanceY", -1, 1, 2, 2, Q("1.75 in")),
    Sketcher.Constraint("DistanceX", 0, 2, -1, 1, Q("0.125 in")),
])
sketch12.setExpression("Constraints[8]", "Params.sketch12_width")
sketch12.setExpression("Constraints[9]", "Params.sketch12_height")
pad5 = body.newObject("PartDesign::Pad", "Pad004")
pad5.Profile = sketch12
pad5.Type = "TwoLengths"
pad5.setExpression("Length", "Params.pad5_length")
pad5.setExpression("Length2", "Params.pad5_length2")

sketch13 = body.newObject("Sketcher::SketchObject", "Sketch012")
sketch13.AttachmentSupport = (doc.getObject("XZ_Plane"), [""])
sketch13.MapMode = "FlatFace"
sketch13.AttachmentOffset = App.Placement(V(0, 0, -1.875 * 25.4), App.Rotation())
sketch13.addGeometry([
    Part.Circle(V(-3.8, -27.9, 0), V(0, 0, 1), 1.8),
    Part.Circle(V(59.7, -27.9, 0), V(0, 0, 1), 1.8),
    Part.Circle(V(27.9, 3.8, 0), V(0, 0, 1), 1.8),
    Part.Circle(V(27.9, -59.7, 0), V(0, 0, 1), 1.8),
], False)
sketch13.addConstraint([
    Sketcher.Constraint("Equal", 0, 1),
    Sketcher.Constraint("Equal", 2, 3),
    Sketcher.Constraint("Horizontal", 0, 3, 1, 3),
    Sketcher.Constraint("Vertical", 2, 3, 3, 3),
    Sketcher.Constraint("Diameter", 2, Q("0.14 in")),
    Sketcher.Constraint("DistanceY", 0, 3, -1, 1, Q("1.1 in")),
    Sketcher.Constraint("DistanceX", -1, 1, 2, 3, Q("1.1 in")),
    Sketcher.Constraint("DistanceX", 0, 3, 1, 3, Q("2.5 in")),
    Sketcher.Constraint("DistanceY", 3, 3, 2, 3, Q("2.5 in")),
    Sketcher.Constraint("Diameter", 0, 3.5),
    Sketcher.Constraint("DistanceX", 0, 3, -1, 1, Q("0.15 in")),
    Sketcher.Constraint("DistanceY", -1, 1, 2, 3, Q("0.15 in")),
])
sketch13.setExpression("Constraints[4]", "Params.sketch13_diameter")
pocket4 = body.newObject("PartDesign::Pocket", "Pocket003")
pocket4.Profile = sketch13
pocket4.Type = "ThroughAll"
pocket4.Reversed = True

sketch14 = body.newObject("Sketcher::SketchObject", "Sketch013")
sketch14.AttachmentSupport = (doc.getObject("XY_Plane"), [""])
sketch14.MapMode = "FlatFace"
sketch14.AttachmentOffset = App.Placement(V(0, 0, -1.1 * 25.4), App.Rotation())
sketch14.addGeometry([
    Part.LineSegment(V(24.8, -2.9, 0), V(8.9, 0, 0)),
    Part.LineSegment(V(8.9, 0, 0), V(27.9, 0, 0)),
    Part.LineSegment(V(27.9, 0, 0), V(27.9, -3.2, 0)),
    Part.ArcOfCircle(Part.Circle(V(27.9, 14.6, 0), V(0, 0, 1), 17.7), math.radians(-100.31), math.radians(-90)),
], False)
sketch14.addGeometry(Part.LineSegment(V(27.9, -3.2, 0), V(27.9, 14.6, 0)), True)
sketch14.addConstraint([
    Sketcher.Constraint("Coincident", 0, 2, 1, 1),
    Sketcher.Constraint("Coincident", 1, 2, 2, 1),
    Sketcher.Constraint("Coincident", 2, 2, 3, 2),
    Sketcher.Constraint("Tangent", 3, 1, 0, 1),
    Sketcher.Constraint("Horizontal", 1),
    Sketcher.Constraint("Vertical", 2),
    Sketcher.Constraint("Vertical", 4),
    Sketcher.Constraint("Coincident", 4, 1, 2, 2),
    Sketcher.Constraint("Coincident", 4, 2, 3, 3),
    Sketcher.Constraint("PointOnObject", 0, 2, -1),
    Sketcher.Constraint("DistanceX", 1, 1, 1, 2, Q("0.75 in")),
    Sketcher.Constraint("DistanceX", -1, 1, 3, 3, Q("1.1 in")),
    Sketcher.Constraint("DistanceY", 2, 2, 2, 1, Q("0.125 in")),
    Sketcher.Constraint("DistanceX", -1, 1, 3, 1, Q("0.975 in")),
])
sketch14.setExpression("Constraints[10]", "Params.sketch14_width")
sketch14.setExpression("Constraints[12]", "Params.sketch14_height")
revolution = body.newObject("PartDesign::Revolution", "Revolution")
revolution.Profile = sketch14
revolution.ReferenceAxis = (sketch14, ["Axis0"])
revolution.setExpression("Angle", "Params.revolution_angle")

sketch15 = body.newObject("Sketcher::SketchObject", "Sketch014")
sketch15.AttachmentSupport = (doc.getObject("XZ_Plane"), [""])
sketch15.MapMode = "FlatFace"
sketch15.AttachmentOffset = App.Placement(V(0, 0, -1.625 * 25.4), App.Rotation())
sketch15.addGeometry([
    Part.Circle(V(-3.8, -27.9, 0), V(0, 0, 1), 2.5),
    Part.Circle(V(-3.8, -27.9, 0), V(0, 0, 1), 1.8),
    Part.Circle(V(27.9, -59.7, 0), V(0, 0, 1), 2.5),
    Part.Circle(V(27.9, -59.7, 0), V(0, 0, 1), 1.8),
], False)
sketch15.addConstraint([
    Sketcher.Constraint("Coincident", 1, 3, 0, 3),
    Sketcher.Constraint("Coincident", 3, 3, 2, 3),
    Sketcher.Constraint("Equal", 0, 2),
    Sketcher.Constraint("Diameter", 0, Q("0.2 in")),
    Sketcher.Constraint("Diameter", 3, Q("0.14 in")),
    Sketcher.Constraint("DistanceY", 0, 3, -1, 1, Q("1.1 in")),
    Sketcher.Constraint("DistanceX", -1, 1, 2, 3, Q("1.1 in")),
    Sketcher.Constraint("Diameter", 1, 3.5),
    Sketcher.Constraint("DistanceX", 0, 3, -1, 1, Q("0.15 in")),
    Sketcher.Constraint("DistanceY", 2, 3, -1, 1, Q("2.35 in")),
])
sketch15.setExpression("Constraints[3]", "Params.sketch15_diameter")
sketch15.setExpression("Constraints[4]", "Params.sketch15_diameter2")
pad6 = body.newObject("PartDesign::Pad", "Pad005")
pad6.Profile = sketch15
pad6.setExpression("Length", "Params.pad6_length")

sketch16 = body.newObject("Sketcher::SketchObject", "Sketch015")
sketch16.AttachmentSupport = (doc.getObject("XZ_Plane"), [""])
sketch16.MapMode = "FlatFace"
sketch16.AttachmentOffset = App.Placement(V(0, 0, -1.34 * 25.4), App.Rotation())
sketch16.addGeometry([
    Part.LineSegment(V(21.6, -62.2, 0), V(34.3, -62.2, 0)),
    Part.ArcOfCircle(Part.Circle(V(34.3, -59.7, 0), V(0, 0, 1), 2.5), math.radians(-90), math.radians(90)),
    Part.LineSegment(V(34.3, -57.1, 0), V(21.6, -57.1, 0)),
    Part.ArcOfCircle(Part.Circle(V(21.6, -59.7, 0), V(0, 0, 1), 2.5), math.radians(90), math.radians(270)),
    Part.Circle(V(34.3, -59.7, 0), V(0, 0, 1), 1.7),
    Part.Circle(V(21.6, -59.7, 0), V(0, 0, 1), 1.7),
    Part.LineSegment(V(-6.3, -21.6, 0), V(-6.3, -34.3, 0)),
    Part.ArcOfCircle(Part.Circle(V(-3.8, -34.3, 0), V(0, 0, 1), 2.5), math.radians(180), math.radians(360)),
    Part.LineSegment(V(-1.3, -34.3, 0), V(-1.3, -21.6, 0)),
    Part.ArcOfCircle(Part.Circle(V(-3.8, -21.6, 0), V(0, 0, 1), 2.5), math.radians(0), math.radians(180)),
    Part.Circle(V(-3.8, -34.3, 0), V(0, 0, 1), 1.7),
    Part.Circle(V(-3.8, -21.6, 0), V(0, 0, 1), 1.7),
], False)
sketch16.addConstraint([
    Sketcher.Constraint("Tangent", 0, 2, 1, 1),
    Sketcher.Constraint("Tangent", 1, 2, 2, 1),
    Sketcher.Constraint("Tangent", 2, 2, 3, 1),
    Sketcher.Constraint("Tangent", 3, 2, 0, 1),
    Sketcher.Constraint("Tangent", 6, 2, 7, 1),
    Sketcher.Constraint("Tangent", 7, 2, 8, 1),
    Sketcher.Constraint("Tangent", 8, 2, 9, 1),
    Sketcher.Constraint("Tangent", 9, 2, 6, 1),
    Sketcher.Constraint("Horizontal", 0),
    Sketcher.Constraint("Horizontal", 2),
    Sketcher.Constraint("Vertical", 6),
    Sketcher.Constraint("Vertical", 8),
    Sketcher.Constraint("Coincident", 4, 3, 1, 3),
    Sketcher.Constraint("Coincident", 5, 3, 3, 3),
    Sketcher.Constraint("Coincident", 10, 3, 7, 3),
    Sketcher.Constraint("Coincident", 11, 3, 9, 3),
    Sketcher.Constraint("Equal", 4, 5),
    Sketcher.Constraint("Equal", 3, 7),
    Sketcher.Constraint("Equal", 5, 10),
    Sketcher.Constraint("Equal", 10, 11),
    Sketcher.Constraint("Equal", 2, 6),
    Sketcher.Constraint("Radius", 1, Q("0.1 in")),
    Sketcher.Constraint("Diameter", 4, Q("0.13 in")),
    Sketcher.Constraint("DistanceX", 0, 1, 0, 2, Q("0.5 in")),
    Sketcher.Constraint("DistanceX", 7, 3, 3, 3, Q("1 in")),
    Sketcher.Constraint("DistanceY", 3, 3, 7, 3, Q("1 in")),
    Sketcher.Constraint("DistanceX", -1, 1, 1, 3, Q("1.35 in")),
    Sketcher.Constraint("DistanceY", 1, 3, -1, 1, Q("2.35 in")),
])
sketch16.setExpression("Constraints[21]", "Params.sketch16_radius")
sketch16.setExpression("Constraints[22]", "Params.sketch16_diameter")
sketch16.setExpression("Constraints[23]", "Params.sketch16_width")
pad7 = body.newObject("PartDesign::Pad", "Pad006")
pad7.Profile = sketch16
pad7.setExpression("Length", "Params.pad7_length")

doc.recompute()
